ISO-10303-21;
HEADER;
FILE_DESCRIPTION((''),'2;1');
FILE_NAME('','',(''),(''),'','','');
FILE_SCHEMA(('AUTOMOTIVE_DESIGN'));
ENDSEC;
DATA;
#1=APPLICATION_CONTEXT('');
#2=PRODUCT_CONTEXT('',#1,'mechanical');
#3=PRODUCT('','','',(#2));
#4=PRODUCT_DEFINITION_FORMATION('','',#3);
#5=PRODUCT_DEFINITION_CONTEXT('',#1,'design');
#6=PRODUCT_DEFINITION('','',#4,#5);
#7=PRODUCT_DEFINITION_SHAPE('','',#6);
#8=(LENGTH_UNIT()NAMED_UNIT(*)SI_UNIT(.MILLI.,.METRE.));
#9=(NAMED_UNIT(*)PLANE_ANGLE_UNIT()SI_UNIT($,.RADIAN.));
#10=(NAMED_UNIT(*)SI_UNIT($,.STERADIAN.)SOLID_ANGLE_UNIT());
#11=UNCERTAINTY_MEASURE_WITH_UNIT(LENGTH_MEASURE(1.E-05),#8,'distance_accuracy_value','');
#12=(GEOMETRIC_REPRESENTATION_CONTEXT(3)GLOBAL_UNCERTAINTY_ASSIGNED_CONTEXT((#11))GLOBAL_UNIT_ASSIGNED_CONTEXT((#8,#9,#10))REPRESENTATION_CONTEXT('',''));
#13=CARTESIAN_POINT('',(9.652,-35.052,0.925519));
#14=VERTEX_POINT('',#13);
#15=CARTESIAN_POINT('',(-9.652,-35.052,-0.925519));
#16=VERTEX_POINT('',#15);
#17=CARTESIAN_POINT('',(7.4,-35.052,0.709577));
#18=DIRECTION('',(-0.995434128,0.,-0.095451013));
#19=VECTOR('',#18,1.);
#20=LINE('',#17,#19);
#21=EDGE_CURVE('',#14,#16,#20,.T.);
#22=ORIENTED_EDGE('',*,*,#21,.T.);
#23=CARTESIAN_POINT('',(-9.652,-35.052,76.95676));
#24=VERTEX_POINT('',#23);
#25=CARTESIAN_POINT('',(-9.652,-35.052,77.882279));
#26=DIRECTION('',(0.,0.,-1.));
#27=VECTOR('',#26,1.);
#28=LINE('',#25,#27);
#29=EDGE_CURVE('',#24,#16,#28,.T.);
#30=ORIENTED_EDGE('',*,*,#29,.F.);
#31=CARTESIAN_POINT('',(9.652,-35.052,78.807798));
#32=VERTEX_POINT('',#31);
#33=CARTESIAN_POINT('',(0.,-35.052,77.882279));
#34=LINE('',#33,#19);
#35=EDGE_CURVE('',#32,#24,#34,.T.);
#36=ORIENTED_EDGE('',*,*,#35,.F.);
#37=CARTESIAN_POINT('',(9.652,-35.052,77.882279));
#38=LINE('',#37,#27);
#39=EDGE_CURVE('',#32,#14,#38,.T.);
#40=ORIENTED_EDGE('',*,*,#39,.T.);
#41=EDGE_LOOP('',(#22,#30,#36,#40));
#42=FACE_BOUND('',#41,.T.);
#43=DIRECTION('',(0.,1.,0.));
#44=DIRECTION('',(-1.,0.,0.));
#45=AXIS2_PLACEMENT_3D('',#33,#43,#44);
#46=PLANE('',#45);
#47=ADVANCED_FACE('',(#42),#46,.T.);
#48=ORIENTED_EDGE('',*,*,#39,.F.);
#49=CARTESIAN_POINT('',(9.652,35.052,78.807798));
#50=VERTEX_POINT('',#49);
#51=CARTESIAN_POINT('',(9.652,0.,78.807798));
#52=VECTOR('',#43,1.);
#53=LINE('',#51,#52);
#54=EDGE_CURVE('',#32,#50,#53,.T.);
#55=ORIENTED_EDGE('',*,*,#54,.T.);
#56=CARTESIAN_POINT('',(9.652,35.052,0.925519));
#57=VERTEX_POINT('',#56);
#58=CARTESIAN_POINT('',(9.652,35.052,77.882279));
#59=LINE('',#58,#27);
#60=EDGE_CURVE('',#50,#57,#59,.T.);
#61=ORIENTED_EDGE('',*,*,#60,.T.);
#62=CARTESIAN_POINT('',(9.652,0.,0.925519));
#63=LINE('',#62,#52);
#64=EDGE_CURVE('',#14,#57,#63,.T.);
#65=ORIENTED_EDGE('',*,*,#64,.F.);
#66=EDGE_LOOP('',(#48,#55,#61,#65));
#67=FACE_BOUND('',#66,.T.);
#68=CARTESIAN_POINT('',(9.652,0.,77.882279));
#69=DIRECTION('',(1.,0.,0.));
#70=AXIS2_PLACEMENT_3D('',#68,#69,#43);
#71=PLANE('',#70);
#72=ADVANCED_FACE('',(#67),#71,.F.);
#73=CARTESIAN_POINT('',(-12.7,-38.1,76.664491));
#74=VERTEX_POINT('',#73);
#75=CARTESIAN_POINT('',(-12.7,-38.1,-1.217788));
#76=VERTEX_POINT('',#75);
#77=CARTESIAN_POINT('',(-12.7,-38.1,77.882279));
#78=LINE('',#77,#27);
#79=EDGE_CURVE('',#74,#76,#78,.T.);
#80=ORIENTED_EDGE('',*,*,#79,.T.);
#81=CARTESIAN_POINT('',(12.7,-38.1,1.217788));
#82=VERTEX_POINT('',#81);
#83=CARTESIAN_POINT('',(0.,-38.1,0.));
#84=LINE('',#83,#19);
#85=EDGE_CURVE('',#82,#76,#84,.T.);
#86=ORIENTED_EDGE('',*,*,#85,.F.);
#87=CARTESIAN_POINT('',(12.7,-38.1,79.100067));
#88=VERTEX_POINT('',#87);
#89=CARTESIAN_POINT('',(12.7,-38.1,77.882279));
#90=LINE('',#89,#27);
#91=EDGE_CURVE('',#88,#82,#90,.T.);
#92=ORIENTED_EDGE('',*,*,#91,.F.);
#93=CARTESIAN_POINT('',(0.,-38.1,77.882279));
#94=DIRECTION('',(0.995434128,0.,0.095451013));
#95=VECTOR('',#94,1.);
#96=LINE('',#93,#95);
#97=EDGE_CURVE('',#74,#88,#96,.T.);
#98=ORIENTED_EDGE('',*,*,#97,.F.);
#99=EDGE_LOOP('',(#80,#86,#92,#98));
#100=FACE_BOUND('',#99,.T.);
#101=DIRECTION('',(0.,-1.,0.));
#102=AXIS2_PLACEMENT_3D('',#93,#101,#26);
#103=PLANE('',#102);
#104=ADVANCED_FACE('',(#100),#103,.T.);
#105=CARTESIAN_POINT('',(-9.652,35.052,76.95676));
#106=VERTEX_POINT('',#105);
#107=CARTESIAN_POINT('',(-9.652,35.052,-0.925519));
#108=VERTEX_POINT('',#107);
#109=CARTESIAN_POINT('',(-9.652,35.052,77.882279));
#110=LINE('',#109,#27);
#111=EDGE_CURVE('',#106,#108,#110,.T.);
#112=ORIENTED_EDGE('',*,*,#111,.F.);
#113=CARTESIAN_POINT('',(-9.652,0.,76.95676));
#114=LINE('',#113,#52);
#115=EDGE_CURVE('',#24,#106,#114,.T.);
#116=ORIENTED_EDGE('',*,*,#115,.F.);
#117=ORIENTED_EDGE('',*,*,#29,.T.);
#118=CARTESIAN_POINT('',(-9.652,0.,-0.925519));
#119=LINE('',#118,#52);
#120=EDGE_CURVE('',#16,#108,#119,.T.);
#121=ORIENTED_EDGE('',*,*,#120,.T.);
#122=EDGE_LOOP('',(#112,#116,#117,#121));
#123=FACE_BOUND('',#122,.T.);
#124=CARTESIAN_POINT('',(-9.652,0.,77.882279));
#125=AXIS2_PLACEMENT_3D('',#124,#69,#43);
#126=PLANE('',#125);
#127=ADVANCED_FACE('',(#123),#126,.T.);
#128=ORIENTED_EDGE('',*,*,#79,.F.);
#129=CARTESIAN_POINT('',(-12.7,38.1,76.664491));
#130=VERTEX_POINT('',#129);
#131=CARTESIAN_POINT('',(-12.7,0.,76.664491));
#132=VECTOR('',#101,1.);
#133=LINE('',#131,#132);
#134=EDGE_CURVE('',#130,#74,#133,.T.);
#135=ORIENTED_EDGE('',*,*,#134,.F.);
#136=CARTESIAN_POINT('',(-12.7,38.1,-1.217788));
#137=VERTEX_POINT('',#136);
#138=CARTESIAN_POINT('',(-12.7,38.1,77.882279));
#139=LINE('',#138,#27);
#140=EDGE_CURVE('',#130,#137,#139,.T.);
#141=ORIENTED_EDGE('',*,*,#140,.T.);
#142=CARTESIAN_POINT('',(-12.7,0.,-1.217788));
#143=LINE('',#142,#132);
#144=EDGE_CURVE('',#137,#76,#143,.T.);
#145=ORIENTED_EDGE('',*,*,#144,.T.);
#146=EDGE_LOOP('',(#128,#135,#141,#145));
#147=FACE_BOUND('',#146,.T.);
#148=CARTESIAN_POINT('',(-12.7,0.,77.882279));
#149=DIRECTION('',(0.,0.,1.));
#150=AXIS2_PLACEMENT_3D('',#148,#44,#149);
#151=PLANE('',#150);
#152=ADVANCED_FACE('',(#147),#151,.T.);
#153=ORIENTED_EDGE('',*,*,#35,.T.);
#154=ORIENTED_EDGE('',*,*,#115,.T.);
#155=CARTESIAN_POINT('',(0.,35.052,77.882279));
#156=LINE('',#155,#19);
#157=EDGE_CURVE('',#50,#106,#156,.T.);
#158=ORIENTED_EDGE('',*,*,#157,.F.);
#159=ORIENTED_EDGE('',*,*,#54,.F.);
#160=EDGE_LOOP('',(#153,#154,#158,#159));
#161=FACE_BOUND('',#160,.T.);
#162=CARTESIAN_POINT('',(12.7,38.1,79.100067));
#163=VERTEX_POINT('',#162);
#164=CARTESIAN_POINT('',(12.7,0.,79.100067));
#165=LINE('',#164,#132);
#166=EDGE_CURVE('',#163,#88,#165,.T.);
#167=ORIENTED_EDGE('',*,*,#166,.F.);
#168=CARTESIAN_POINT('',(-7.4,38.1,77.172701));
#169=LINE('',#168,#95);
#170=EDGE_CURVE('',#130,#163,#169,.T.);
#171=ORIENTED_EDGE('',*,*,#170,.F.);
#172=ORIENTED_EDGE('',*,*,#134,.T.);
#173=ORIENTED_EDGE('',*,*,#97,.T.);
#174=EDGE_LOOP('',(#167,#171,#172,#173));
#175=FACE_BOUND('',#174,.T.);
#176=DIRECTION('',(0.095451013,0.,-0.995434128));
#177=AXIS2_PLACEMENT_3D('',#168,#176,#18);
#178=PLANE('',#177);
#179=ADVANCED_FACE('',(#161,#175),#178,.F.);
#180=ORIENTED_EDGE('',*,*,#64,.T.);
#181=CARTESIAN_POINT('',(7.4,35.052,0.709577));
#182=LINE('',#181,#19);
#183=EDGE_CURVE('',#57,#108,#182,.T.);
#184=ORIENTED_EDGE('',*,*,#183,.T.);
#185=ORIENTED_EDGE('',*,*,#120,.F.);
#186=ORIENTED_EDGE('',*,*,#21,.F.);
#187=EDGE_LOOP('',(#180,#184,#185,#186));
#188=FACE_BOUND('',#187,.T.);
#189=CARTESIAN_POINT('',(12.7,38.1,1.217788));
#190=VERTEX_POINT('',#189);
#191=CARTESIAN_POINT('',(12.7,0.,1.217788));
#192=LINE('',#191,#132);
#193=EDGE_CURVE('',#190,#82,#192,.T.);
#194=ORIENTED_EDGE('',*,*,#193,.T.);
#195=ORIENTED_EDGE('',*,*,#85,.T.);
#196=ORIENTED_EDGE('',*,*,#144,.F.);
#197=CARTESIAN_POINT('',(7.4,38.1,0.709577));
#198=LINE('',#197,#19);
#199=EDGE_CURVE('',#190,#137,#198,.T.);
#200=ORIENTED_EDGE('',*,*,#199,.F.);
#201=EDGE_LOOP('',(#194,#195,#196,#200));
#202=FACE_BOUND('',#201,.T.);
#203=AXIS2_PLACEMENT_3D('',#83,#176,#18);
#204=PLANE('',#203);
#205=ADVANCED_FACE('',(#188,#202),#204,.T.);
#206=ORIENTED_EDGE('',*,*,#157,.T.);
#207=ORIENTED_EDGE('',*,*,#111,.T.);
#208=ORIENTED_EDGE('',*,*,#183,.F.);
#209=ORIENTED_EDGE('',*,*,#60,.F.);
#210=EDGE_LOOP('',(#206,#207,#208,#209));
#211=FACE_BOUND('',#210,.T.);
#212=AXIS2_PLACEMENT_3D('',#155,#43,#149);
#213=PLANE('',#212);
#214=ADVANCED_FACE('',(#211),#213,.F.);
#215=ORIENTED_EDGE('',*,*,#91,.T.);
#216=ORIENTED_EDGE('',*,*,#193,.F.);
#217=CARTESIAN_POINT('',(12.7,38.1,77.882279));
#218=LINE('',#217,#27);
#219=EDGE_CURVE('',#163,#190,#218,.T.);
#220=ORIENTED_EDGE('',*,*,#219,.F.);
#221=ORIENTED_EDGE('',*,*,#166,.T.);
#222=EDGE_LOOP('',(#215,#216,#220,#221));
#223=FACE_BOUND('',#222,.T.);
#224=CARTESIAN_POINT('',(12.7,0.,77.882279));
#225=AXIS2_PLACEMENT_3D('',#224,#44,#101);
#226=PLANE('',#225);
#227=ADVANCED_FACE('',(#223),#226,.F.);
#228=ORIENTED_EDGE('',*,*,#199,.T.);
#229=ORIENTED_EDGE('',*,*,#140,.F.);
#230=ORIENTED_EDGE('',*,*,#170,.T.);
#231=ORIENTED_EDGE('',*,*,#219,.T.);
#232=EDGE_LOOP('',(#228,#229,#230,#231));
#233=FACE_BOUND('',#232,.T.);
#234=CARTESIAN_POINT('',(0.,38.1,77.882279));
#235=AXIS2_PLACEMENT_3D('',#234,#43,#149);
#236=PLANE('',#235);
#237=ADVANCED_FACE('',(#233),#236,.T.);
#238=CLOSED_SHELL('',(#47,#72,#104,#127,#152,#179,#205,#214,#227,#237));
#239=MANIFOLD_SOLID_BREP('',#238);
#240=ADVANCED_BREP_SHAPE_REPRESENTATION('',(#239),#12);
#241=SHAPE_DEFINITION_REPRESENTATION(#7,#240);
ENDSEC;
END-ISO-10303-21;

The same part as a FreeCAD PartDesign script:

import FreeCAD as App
import Part
import Sketcher
Q = App.Units.Quantity

doc = App.newDocument("Part")
body = doc.addObject("PartDesign::Body", "Body")

sketch1 = body.newObject("Sketcher::SketchObject", "Sketch")
sketch1.AttachmentSupport = (doc.getObject("XY_Plane"), [""])
sketch1.MapMode = "FlatFace"
sketch1.addGeometry([
    Part.LineSegment(App.Vector(13, 38, 0), App.Vector(-13, 38, 0)),
    Part.LineSegment(App.Vector(-13, 38, 0), App.Vector(-13, -38, 0)),
    Part.LineSegment(App.Vector(-13, -38, 0), App.Vector(13, -38, 0)),
    Part.LineSegment(App.Vector(13, -38, 0), App.Vector(13, 38, 0)),
    Part.LineSegment(App.Vector(-10, 35, 0), App.Vector(10, 35, 0)),
    Part.LineSegment(App.Vector(10, 35, 0), App.Vector(10, -35, 0)),
    Part.LineSegment(App.Vector(10, -35, 0), App.Vector(-10, -35, 0)),
    Part.LineSegment(App.Vector(-10, -35, 0), App.Vector(-10, 35, 0)),
], False)
sketch1.addConstraint([
    Sketcher.Constraint("Coincident", 0, 2, 1, 1),
    Sketcher.Constraint("Coincident", 1, 2, 2, 1),
    Sketcher.Constraint("Coincident", 2, 2, 3, 1),
    Sketcher.Constraint("Coincident", 3, 2, 0, 1),
    Sketcher.Constraint("Coincident", 4, 2, 5, 1),
    Sketcher.Constraint("Coincident", 5, 2, 6, 1),
    Sketcher.Constraint("Coincident", 6, 2, 7, 1),
    Sketcher.Constraint("Coincident", 7, 2, 4, 1),
    Sketcher.Constraint("Horizontal", 0),
    Sketcher.Constraint("Vertical", 1),
    Sketcher.Constraint("Horizontal", 2),
    Sketcher.Constraint("Vertical", 3),
    Sketcher.Constraint("Horizontal", 4),
    Sketcher.Constraint("Vertical", 5),
    Sketcher.Constraint("Horizontal", 6),
    Sketcher.Constraint("Vertical", 7),
    Sketcher.Constraint("Symmetric", 0, 2, 2, 2, -1, 1),
    Sketcher.Constraint("Symmetric", 4, 2, 6, 2, -1, 1),
    Sketcher.Constraint("DistanceX", 0, 2, 0, 1, Q("1 in")),
    Sketcher.Constraint("DistanceY", 1, 2, 1, 1, Q("3 in")),
    Sketcher.Constraint("DistanceX", 4, 1, 4, 2, Q("0.76 in")),
    Sketcher.Constraint("DistanceY", 5, 2, 5, 1, Q("2.76 in")),
])
pad1 = body.newObject("PartDesign::Pad", "Pad")
pad1.Profile = sketch1
pad1.Length = 77.882279

sketch2 = body.newObject("Sketcher::SketchObject", "Sketch001")
sketch2.AttachmentSupport = (doc.getObject("XY_Plane"), [""])
sketch2.MapMode = "FlatFace"
sketch2.addGeometry([
    Part.LineSegment(App.Vector(13, 38, 0), App.Vector(13, -38, 0)),
    Part.LineSegment(App.Vector(13, -38, 0), App.Vector(-13, -38, 0)),
    Part.LineSegment(App.Vector(-13, -38, 0), App.Vector(-13, 38, 0)),
    Part.LineSegment(App.Vector(-13, 38, 0), App.Vector(13, 38, 0)),
    Part.LineSegment(App.Vector(-10, -35, 0), App.Vector(10, -35, 0)),
    Part.LineSegment(App.Vector(10, -35, 0), App.Vector(10, 35, 0)),
    Part.LineSegment(App.Vector(10, 35, 0), App.Vector(-10, 35, 0)),
    Part.LineSegment(App.Vector(-10, 35, 0), App.Vector(-10, -35, 0)),
], False)
sketch2.addConstraint([
    Sketcher.Constraint("Coincident", 0, 2, 1, 1),
    Sketcher.Constraint("Coincident", 1, 2, 2, 1),
    Sketcher.Constraint("Coincident", 2, 2, 3, 1),
    Sketcher.Constraint("Coincident", 3, 2, 0, 1),
    Sketcher.Constraint("Coincident", 4, 2, 5, 1),
    Sketcher.Constraint("Coincident", 5, 2, 6, 1),
    Sketcher.Constraint("Coincident", 6, 2, 7, 1),
    Sketcher.Constraint("Coincident", 7, 2, 4, 1),
    Sketcher.Constraint("Vertical", 0),
    Sketcher.Constraint("Horizontal", 1),
    Sketcher.Constraint("Vertical", 2),
    Sketcher.Constraint("Horizontal", 3),
    Sketcher.Constraint("Horizontal", 4),
    Sketcher.Constraint("Vertical", 5),
    Sketcher.Constraint("Horizontal", 6),
    Sketcher.Constraint("Vertical", 7),
    Sketcher.Constraint("Symmetric", 0, 2, 2, 2, -1, 1),
    Sketcher.Constraint("Symmetric", 4, 2, 6, 2, -1, 1),
    Sketcher.Constraint("DistanceX", 1, 2, 1, 1, Q("1 in")),
    Sketcher.Constraint("DistanceY", 0, 2, 0, 1, Q("3 in")),
    Sketcher.Constraint("DistanceX", 4, 1, 4, 2, Q("0.76 in")),
    Sketcher.Constraint("DistanceY", 5, 1, 5, 2, Q("2.76 in")),
])
pad2 = body.newObject("PartDesign::Pad", "Pad001")
pad2.Profile = sketch2
pad2.Length = 50
pad2.Reversed = True

sketch3 = body.newObject("Sketcher::SketchObject", "Sketch002")
sketch3.AttachmentSupport = (doc.getObject("XZ_Plane"), [""])
sketch3.MapMode = "FlatFace"
sketch3.AttachmentOffset = App.Placement(App.Vector(0, 0, -1.5 * 25.4), App.Rotation())
sketch3.addGeometry([
    Part.LineSegment(App.Vector(-120, -11, 0), App.Vector(-13, -1, 0)),
    Part.LineSegment(App.Vector(-13, -1, 0), App.Vector(13, 1, 0)),
    Part.LineSegment(App.Vector(13, 1, 0), App.Vector(120, 11, 0)),
    Part.LineSegment(App.Vector(120, 11, 0), App.Vector(127, -66, 0)),
    Part.LineSegment(App.Vector(127, -66, 0), App.Vector(-112, -89, 0)),
    Part.LineSegment(App.Vector(-112, -89, 0), App.Vector(-120, -11, 0)),
], False)
sketch3.addConstraint([
    Sketcher.Constraint("Coincident", 0, 2, 1, 1),
    Sketcher.Constraint("Coincident", 1, 2, 2, 1),
    Sketcher.Constraint("Coincident", 2, 2, 3, 1),
    Sketcher.Constraint("Coincident", 3, 2, 4, 1),
    Sketcher.Constraint("Coincident", 4, 2, 5, 1),
    Sketcher.Constraint("Coincident", 5, 2, 0, 1),
    Sketcher.Constraint("Symmetric", 0, 2, 1, 2, -1, 1),
    Sketcher.Constraint("Symmetric", 2, 2, 5, 2, -1, 1),
    Sketcher.Constraint("Parallel", 0, 1),
    Sketcher.Constraint("Perpendicular", 2, 3),
    Sketcher.Constraint("Perpendicular", 3, 4),
    Sketcher.Constraint("Perpendicular", 4, 5),
    Sketcher.Constraint("DistanceX", 0, 2, 1, 2, Q("1 in")),
    Sketcher.Constraint("DistanceY", 4, 2, 0, 2, Q("87.929101 mm")),
    Sketcher.Constraint("Distance", 4, Q("240.557412 mm")),
    Sketcher.Constraint("DistanceY", 0, 2, -1, 1, Q("1.217788 mm")),
])
pocket1 = body.newObject("PartDesign::Pocket", "Pocket")
pocket1.Profile = sketch3
pocket1.Type = "ThroughAll"
pocket1.Midplane = True

sketch4 = body.newObject("Sketcher::SketchObject", "Sketch003")
sketch4.AttachmentSupport = (doc.getObject("XY_Plane"), [""])
sketch4.MapMode = "FlatFace"
sketch4.AttachmentOffset = App.Placement(App.Vector(0, 0, 77.882279), App.Rotation())
sketch4.addGeometry([
    Part.LineSegment(App.Vector(-13, 38, 0), App.Vector(-13, -38, 0)),
    Part.LineSegment(App.Vector(-13, -38, 0), App.Vector(13, -38, 0)),
    Part.LineSegment(App.Vector(13, -38, 0), App.Vector(13, 38, 0)),
    Part.LineSegment(App.Vector(13, 38, 0), App.Vector(-13, 38, 0)),
    Part.LineSegment(App.Vector(10, -35, 0), App.Vector(-10, -35, 0)),
    Part.LineSegment(App.Vector(-10, -35, 0), App.Vector(-10, 35, 0)),
    Part.LineSegment(App.Vector(-10, 35, 0), App.Vector(10, 35, 0)),
    Part.LineSegment(App.Vector(10, 35, 0), App.Vector(10, -35, 0)),
], False)
sketch4.addConstraint([
    Sketcher.Constraint("Coincident", 0, 2, 1, 1),
    Sketcher.Constraint("Coincident", 1, 2, 2, 1),
    Sketcher.Constraint("Coincident", 2, 2, 3, 1),
    Sketcher.Constraint("Coincident", 3, 2, 0, 1),
    Sketcher.Constraint("Coincident", 4, 2, 5, 1),
    Sketcher.Constraint("Coincident", 5, 2, 6, 1),
    Sketcher.Constraint("Coincident", 6, 2, 7, 1),
    Sketcher.Constraint("Coincident", 7, 2, 4, 1),
    Sketcher.Constraint("Vertical", 0),
    Sketcher.Constraint("Horizontal", 1),
    Sketcher.Constraint("Vertical", 2),
    Sketcher.Constraint("Horizontal", 3),
    Sketcher.Constraint("Horizontal", 4),
    Sketcher.Constraint("Vertical", 5),
    Sketcher.Constraint("Horizontal", 6),
    Sketcher.Constraint("Vertical", 7),
    Sketcher.Constraint("Symmetric", 0, 2, 2, 2, -1, 1),
    Sketcher.Constraint("Symmetric", 4, 2, 6, 2, -1, 1),
    Sketcher.Constraint("DistanceX", 1, 1, 1, 2, Q("1 in")),
    Sketcher.Constraint("DistanceY", 0, 2, 0, 1, Q("3 in")),
    Sketcher.Constraint("DistanceX", 4, 2, 4, 1, Q("0.76 in")),
    Sketcher.Constraint("DistanceY", 5, 1, 5, 2, Q("2.76 in")),
])
pad3 = body.newObject("PartDesign::Pad", "Pad002")
pad3.Profile = sketch4
pad3.Length = 50

sketch5 = body.newObject("Sketcher::SketchObject", "Sketch004")
sketch5.AttachmentSupport = (doc.getObject("XZ_Plane"), [""])
sketch5.MapMode = "FlatFace"
sketch5.AttachmentOffset = App.Placement(App.Vector(0, 0, 1.5 * 25.4), App.Rotation())
sketch5.addGeometry([
    Part.LineSegment(App.Vector(-113.161208, 166.450733, 0), App.Vector(-103.714859, 67.937182, 0)),
    Part.LineSegment(App.Vector(-103.714859, 67.937182, 0), App.Vector(-12.7, 76.66449, 0)),
    Part.LineSegment(App.Vector(-12.7, 76.66449, 0), App.Vector(0, 77.882279, 0)),
    Part.LineSegment(App.Vector(0, 77.882279, 0), App.Vector(12.7, 79.100067, 0)),
    Part.LineSegment(App.Vector(12.7, 79.100067, 0), App.Vector(103.714859, 87.827375, 0)),
    Part.LineSegment(App.Vector(103.714859, 87.827375, 0), App.Vector(94.268509, 186.340926, 0)),
    Part.LineSegment(App.Vector(94.268509, 186.340926, 0), App.Vector(-113.161208, 166.450733, 0)),
], False)
sketch5.addConstraint([
    Sketcher.Constraint("Coincident", 0, 2, 1, 1),
    Sketcher.Constraint("Coincident", 1, 2, 2, 1),
    Sketcher.Constraint("Coincident", 2, 2, 3, 1),
    Sketcher.Constraint("Coincident", 3, 2, 4, 1),
    Sketcher.Constraint("Coincident", 4, 2, 5, 1),
    Sketcher.Constraint("Coincident", 5, 2, 6, 1),
    Sketcher.Constraint("Coincident", 6, 2, 0, 1),
    Sketcher.Constraint("PointOnObject", 2, 2, -2),
    Sketcher.Constraint("DistanceX", 1, 2, 3, 2, Q("1 in")),
    Sketcher.Constraint("DistanceX", 1, 2, -1, 1, Q("0.5 in")),
    Sketcher.Constraint("Distance", 6, Q("208.381159 mm")),
    Sketcher.Constraint("DistanceX", 0, 2, -1, 1, Q("103.714859 mm")),
    Sketcher.Constraint("DistanceY", -1, 1, 1, 2, Q("76.66449 mm")),
    Sketcher.Constraint("DistanceY", -1, 1, 2, 2, Q("77.882279 mm")),
    Sketcher.Constraint("DistanceX", -1, 1, 4, 2, Q("103.714859 mm")),
    Sketcher.Constraint("DistanceX", -1, 1, 5, 2, Q("94.268509 mm")),
    Sketcher.Constraint("DistanceY", 0, 2, 1, 2, Q("8.727308 mm")),
    Sketcher.Constraint("DistanceY", 2, 2, 3, 2, Q("1.217788 mm")),
    Sketcher.Constraint("DistanceY", 3, 2, 4, 2, Q("8.727308 mm")),
    Sketcher.Constraint("DistanceY", 4, 2, 5, 2, Q("98.513551 mm")),
    Sketcher.Constraint("DistanceX", 6, 2, 0, 2, Q("9.446349 mm")),
])
pocket2 = body.newObject("PartDesign::Pocket", "Pocket001")
pocket2.Profile = sketch5
pocket2.Type = "ThroughAll"
pocket2.Midplane = True

doc.recompute()
